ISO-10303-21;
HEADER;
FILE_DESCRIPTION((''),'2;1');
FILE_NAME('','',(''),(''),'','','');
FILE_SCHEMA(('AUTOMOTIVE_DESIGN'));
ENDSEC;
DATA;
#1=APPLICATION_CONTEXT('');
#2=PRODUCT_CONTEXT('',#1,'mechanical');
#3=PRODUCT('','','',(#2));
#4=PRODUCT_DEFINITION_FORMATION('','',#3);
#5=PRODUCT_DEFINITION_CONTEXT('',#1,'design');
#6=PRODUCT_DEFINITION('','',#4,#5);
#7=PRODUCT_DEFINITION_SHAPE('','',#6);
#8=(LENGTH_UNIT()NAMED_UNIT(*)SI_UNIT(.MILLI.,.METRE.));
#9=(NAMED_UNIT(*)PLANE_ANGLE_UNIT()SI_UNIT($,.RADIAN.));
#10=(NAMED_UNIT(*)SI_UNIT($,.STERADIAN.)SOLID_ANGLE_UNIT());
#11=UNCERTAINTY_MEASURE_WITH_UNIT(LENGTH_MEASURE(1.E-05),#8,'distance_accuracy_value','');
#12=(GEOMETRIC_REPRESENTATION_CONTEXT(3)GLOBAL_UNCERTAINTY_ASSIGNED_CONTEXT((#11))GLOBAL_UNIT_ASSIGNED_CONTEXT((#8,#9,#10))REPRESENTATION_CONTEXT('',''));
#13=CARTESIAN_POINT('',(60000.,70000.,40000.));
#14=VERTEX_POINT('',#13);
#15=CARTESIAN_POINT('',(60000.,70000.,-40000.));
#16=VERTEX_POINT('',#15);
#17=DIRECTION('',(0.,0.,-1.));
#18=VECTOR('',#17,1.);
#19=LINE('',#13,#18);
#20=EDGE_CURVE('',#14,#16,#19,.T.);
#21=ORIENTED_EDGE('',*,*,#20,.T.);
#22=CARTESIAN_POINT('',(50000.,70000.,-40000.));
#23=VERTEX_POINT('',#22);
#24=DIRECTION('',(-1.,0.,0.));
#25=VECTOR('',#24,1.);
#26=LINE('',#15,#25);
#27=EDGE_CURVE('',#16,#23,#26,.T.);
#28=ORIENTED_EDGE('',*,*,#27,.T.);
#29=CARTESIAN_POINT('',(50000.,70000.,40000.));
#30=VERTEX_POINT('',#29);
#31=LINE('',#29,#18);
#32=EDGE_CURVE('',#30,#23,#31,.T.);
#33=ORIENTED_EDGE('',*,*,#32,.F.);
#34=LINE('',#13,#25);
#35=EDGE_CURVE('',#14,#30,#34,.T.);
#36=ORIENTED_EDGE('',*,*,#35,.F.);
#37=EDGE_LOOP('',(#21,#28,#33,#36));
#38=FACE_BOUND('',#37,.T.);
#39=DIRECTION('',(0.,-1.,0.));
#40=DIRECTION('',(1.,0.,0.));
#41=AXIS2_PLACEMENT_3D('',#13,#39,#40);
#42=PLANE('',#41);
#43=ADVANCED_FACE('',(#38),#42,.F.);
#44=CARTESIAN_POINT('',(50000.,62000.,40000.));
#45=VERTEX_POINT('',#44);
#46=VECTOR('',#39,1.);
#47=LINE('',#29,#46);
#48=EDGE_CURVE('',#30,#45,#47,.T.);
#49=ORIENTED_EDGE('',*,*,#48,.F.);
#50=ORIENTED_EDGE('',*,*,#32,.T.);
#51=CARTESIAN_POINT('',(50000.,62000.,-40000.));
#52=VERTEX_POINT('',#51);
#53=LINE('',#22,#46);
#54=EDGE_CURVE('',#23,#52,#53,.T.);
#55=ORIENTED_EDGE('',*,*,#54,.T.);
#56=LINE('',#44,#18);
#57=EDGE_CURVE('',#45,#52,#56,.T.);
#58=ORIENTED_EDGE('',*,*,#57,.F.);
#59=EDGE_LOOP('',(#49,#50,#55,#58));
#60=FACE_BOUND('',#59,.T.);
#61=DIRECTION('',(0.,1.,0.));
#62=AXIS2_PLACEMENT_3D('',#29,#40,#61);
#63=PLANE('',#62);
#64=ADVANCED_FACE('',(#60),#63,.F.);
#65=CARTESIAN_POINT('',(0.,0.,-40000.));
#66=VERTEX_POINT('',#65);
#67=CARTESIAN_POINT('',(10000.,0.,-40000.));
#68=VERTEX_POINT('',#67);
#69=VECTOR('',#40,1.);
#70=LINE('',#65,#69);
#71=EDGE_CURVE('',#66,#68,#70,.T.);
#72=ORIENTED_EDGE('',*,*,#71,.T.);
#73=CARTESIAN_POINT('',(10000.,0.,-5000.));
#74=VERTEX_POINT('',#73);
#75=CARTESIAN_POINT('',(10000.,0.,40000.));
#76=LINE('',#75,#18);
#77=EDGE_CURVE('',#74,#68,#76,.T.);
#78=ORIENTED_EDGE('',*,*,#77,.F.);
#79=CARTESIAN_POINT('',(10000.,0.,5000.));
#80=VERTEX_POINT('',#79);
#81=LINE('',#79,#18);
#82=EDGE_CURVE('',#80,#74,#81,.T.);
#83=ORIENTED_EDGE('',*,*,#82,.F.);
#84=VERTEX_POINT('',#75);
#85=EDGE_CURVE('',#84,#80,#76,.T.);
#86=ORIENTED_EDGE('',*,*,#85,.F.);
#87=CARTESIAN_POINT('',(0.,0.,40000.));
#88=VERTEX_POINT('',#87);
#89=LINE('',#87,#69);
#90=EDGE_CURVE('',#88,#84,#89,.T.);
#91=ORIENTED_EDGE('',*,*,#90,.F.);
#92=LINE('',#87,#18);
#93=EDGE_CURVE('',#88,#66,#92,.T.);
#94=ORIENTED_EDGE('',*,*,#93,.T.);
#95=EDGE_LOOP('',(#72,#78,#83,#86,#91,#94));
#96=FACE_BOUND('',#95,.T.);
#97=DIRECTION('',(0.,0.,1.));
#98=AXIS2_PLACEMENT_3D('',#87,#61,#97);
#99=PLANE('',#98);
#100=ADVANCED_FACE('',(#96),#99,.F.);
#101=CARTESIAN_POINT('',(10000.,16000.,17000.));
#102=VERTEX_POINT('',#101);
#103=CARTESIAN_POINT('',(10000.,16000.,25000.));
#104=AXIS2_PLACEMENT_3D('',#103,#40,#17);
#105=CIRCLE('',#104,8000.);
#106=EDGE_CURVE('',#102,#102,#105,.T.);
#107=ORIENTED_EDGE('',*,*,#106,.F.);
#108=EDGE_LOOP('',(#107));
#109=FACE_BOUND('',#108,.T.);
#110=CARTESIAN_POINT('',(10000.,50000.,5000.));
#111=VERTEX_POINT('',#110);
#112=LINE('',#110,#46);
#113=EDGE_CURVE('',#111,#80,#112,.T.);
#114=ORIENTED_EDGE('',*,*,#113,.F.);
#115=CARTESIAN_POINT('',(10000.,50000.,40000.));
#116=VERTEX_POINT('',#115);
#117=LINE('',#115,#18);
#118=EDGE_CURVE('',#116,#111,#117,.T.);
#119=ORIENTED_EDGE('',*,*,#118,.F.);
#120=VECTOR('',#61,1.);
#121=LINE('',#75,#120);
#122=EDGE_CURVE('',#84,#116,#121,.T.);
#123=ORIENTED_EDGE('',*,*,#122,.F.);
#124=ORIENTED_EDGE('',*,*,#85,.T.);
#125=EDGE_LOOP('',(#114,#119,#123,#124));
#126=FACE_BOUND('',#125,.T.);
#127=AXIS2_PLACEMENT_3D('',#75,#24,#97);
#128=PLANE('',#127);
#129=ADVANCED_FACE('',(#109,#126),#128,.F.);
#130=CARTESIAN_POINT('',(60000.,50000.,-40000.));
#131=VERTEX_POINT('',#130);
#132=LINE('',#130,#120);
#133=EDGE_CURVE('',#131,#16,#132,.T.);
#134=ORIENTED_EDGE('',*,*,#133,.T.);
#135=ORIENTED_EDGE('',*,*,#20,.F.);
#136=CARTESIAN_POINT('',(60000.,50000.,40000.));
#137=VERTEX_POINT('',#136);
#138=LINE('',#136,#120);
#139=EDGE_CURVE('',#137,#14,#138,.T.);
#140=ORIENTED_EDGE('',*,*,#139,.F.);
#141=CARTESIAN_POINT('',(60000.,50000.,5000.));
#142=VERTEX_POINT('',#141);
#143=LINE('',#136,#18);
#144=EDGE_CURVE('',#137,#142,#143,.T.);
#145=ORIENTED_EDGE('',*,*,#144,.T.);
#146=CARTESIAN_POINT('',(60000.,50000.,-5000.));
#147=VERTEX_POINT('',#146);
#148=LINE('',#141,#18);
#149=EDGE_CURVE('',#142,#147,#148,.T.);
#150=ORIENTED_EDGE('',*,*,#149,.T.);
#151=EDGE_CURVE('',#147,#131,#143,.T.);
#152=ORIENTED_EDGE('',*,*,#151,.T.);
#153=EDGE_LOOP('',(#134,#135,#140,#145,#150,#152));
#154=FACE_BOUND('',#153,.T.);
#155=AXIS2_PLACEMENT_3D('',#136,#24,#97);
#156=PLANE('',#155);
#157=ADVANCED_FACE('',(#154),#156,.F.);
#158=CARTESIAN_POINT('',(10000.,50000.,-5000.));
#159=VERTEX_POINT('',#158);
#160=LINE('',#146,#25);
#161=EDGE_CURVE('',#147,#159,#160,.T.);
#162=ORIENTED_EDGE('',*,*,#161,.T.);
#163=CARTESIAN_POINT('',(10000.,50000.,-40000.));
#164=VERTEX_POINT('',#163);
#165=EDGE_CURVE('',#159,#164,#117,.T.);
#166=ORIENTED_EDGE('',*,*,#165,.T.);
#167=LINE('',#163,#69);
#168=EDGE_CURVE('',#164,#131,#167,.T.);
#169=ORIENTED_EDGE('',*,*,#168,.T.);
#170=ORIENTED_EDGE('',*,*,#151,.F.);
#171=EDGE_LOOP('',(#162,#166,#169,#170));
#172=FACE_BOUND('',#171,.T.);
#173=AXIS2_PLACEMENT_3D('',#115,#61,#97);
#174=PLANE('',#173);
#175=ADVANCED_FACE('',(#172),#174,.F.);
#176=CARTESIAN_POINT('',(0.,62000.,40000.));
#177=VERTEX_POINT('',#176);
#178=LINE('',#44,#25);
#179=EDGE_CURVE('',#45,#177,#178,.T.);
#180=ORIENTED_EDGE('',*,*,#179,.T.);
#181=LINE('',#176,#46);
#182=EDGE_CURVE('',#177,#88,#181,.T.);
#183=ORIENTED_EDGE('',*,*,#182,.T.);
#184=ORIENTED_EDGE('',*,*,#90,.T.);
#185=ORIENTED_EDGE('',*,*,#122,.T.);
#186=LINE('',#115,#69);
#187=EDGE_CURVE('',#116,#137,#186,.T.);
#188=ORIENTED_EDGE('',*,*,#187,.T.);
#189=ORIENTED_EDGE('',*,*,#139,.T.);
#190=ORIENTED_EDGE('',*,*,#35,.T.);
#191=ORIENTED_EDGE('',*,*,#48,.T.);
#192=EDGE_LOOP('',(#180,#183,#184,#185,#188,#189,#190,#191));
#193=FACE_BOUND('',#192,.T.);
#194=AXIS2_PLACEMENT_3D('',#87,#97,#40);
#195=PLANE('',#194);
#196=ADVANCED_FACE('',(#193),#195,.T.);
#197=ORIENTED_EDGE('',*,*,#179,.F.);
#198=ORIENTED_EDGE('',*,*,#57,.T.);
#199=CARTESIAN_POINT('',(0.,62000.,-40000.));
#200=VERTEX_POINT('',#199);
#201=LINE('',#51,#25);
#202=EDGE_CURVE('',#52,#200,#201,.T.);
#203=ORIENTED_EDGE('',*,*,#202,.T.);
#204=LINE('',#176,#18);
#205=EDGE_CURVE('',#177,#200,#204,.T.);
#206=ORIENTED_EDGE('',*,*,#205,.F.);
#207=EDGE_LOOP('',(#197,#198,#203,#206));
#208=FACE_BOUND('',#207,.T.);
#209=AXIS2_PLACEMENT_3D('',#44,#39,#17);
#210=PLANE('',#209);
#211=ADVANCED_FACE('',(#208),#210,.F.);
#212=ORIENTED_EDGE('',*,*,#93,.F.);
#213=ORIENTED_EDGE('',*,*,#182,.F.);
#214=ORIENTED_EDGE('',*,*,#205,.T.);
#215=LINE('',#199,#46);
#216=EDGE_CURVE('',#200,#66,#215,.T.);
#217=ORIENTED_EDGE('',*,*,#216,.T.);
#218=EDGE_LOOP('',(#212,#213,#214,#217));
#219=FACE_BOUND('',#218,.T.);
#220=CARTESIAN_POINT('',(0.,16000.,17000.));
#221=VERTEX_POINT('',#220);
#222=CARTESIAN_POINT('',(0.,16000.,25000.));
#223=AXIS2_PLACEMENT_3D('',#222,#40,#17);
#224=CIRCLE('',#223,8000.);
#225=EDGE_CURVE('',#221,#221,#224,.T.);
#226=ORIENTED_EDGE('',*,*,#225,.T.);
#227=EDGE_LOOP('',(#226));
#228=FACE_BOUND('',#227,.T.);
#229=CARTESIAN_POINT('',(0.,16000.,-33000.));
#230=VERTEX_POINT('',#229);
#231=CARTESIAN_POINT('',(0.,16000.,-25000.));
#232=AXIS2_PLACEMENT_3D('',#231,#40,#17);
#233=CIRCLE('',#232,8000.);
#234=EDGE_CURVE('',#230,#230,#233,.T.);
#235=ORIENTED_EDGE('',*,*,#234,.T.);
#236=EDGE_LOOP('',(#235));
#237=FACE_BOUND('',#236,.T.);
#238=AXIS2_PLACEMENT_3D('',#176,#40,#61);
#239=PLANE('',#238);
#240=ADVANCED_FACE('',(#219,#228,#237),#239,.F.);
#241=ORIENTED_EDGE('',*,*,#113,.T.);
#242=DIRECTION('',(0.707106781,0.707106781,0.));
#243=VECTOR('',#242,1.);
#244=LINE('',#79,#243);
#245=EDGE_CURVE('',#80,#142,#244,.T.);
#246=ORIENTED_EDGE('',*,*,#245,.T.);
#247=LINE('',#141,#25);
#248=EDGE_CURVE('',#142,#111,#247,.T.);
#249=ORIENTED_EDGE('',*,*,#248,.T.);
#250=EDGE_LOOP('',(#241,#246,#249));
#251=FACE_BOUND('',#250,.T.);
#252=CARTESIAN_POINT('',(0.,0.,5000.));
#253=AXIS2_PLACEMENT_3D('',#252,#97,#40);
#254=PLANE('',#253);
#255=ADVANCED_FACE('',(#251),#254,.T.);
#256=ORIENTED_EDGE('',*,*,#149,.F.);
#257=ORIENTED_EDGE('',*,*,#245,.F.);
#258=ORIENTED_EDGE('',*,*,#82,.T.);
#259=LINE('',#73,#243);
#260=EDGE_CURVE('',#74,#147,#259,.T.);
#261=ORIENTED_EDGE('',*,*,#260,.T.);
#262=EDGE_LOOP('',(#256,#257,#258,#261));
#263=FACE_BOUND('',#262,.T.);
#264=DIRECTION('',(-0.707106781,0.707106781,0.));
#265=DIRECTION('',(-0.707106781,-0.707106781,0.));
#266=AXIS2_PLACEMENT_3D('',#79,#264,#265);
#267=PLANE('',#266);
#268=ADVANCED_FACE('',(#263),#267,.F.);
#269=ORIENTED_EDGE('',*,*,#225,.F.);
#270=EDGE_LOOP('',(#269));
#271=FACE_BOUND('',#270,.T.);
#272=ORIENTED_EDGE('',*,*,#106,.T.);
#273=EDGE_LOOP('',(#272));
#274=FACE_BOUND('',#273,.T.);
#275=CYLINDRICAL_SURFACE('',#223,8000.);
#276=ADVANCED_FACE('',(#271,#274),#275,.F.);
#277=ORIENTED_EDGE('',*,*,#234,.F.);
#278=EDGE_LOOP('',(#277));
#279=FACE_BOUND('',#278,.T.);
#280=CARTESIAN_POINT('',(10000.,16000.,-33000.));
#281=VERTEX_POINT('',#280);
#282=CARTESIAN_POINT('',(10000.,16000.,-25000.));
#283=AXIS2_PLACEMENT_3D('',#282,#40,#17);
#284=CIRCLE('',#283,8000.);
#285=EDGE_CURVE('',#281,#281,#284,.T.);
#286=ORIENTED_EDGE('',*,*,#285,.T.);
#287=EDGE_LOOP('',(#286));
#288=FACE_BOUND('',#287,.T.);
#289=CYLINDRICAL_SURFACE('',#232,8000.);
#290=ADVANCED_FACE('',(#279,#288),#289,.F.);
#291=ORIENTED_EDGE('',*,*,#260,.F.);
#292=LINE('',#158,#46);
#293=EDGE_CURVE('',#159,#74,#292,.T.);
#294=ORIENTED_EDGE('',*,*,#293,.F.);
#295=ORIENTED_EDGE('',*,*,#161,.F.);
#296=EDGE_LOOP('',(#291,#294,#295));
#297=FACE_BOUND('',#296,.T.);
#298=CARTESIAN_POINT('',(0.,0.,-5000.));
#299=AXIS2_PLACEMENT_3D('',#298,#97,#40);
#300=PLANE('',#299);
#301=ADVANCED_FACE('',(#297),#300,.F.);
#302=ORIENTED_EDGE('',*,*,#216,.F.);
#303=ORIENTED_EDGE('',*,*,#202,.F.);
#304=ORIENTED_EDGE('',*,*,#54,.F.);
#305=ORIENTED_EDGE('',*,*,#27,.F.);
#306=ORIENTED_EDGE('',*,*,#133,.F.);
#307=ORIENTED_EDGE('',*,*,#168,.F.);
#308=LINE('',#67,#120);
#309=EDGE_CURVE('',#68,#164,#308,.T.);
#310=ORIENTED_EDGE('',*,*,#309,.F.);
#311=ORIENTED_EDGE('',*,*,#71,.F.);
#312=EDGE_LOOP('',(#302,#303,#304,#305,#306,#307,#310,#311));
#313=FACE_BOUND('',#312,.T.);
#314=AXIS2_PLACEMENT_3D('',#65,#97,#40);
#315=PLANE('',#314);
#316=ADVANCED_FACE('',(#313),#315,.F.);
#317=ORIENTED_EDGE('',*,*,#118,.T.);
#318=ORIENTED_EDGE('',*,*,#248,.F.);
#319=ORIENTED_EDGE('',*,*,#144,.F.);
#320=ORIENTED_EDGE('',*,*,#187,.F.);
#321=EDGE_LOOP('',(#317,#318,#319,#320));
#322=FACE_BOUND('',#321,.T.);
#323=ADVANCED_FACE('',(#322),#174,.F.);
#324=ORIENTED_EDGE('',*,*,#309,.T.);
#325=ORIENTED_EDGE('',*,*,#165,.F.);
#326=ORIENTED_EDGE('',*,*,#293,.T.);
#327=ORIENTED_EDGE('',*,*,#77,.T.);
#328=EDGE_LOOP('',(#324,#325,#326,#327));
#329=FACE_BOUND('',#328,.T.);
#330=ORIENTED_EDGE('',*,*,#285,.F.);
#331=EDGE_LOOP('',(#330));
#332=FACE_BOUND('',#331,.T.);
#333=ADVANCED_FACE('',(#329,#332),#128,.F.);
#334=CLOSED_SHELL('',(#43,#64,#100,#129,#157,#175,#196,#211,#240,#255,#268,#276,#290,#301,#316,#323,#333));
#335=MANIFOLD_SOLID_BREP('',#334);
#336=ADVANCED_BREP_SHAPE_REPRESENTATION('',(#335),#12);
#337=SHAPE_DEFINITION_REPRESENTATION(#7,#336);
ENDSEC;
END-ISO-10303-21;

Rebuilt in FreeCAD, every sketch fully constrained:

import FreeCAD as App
import Part
import Sketcher

V = App.Vector
Q = App.Units.Quantity

doc = App.newDocument("Part")
body = doc.addObject("PartDesign::Body", "Body")

# Sketch on XY plane
sketch1 = body.newObject("Sketcher::SketchObject", "Sketch")
sketch1.AttachmentSupport = (doc.getObject("XY_Plane"), [""])
sketch1.MapMode = "FlatFace"
sketch1.addGeometry([
    Part.LineSegment(V(0, 0, 0), V(10000, 0, 0)),  # 0
    Part.LineSegment(V(10000, 0, 0), V(10000, 50000, 0)),  # 1
    Part.LineSegment(V(10000, 50000, 0), V(60000, 50000, 0)),  # 2
    Part.LineSegment(V(60000, 50000, 0), V(60000, 70000, 0)),  # 3
    Part.LineSegment(V(60000, 70000, 0), V(50000, 70000, 0)),  # 4
    Part.LineSegment(V(50000, 70000, 0), V(50000, 62000, 0)),  # 5
    Part.LineSegment(V(50000, 62000, 0), V(0, 62000, 0)),  # 6
    Part.LineSegment(V(0, 62000, 0), V(0, 0, 0)),  # 7
], False)
sketch1.addConstraint([
    Sketcher.Constraint("Coincident", 0, 2, 1, 1),
    Sketcher.Constraint("Coincident", 1, 2, 2, 1),
    Sketcher.Constraint("Coincident", 2, 2, 3, 1),
    Sketcher.Constraint("Coincident", 3, 2, 4, 1),
    Sketcher.Constraint("Coincident", 4, 2, 5, 1),
    Sketcher.Constraint("Coincident", 5, 2, 6, 1),
    Sketcher.Constraint("Coincident", 6, 2, 7, 1),
    Sketcher.Constraint("Coincident", 7, 2, 0, 1),
    Sketcher.Constraint("Horizontal", 0),
    Sketcher.Constraint("Vertical", 1),
    Sketcher.Constraint("Horizontal", 2),
    Sketcher.Constraint("Vertical", 3),
    Sketcher.Constraint("Horizontal", 4),
    Sketcher.Constraint("Vertical", 5),
    Sketcher.Constraint("Horizontal", 6),
    Sketcher.Constraint("Vertical", 7),
    Sketcher.Constraint("Coincident", 7, 2, -1, 1),
    Sketcher.Constraint("Equal", 0, 4),
    Sketcher.Constraint("Equal", 6, 1),
    Sketcher.Constraint("DistanceX", 0, 1, 0, 2, Q("10000 mm")),
    Sketcher.Constraint("DistanceX", 2, 1, 2, 2, Q("50000 mm")),
    Sketcher.Constraint("DistanceY", 3, 1, 3, 2, Q("20000 mm")),
    Sketcher.Constraint("DistanceY", 5, 2, 5, 1, Q("8000 mm")),
])
pad1 = body.newObject("PartDesign::Pad", "Pad")
pad1.Profile = sketch1
pad1.Length = 80000
pad1.Midplane = True

# Sketch on YZ plane
sketch2 = body.newObject("Sketcher::SketchObject", "Sketch001")
sketch2.AttachmentSupport = (doc.getObject("YZ_Plane"), [""])
sketch2.MapMode = "FlatFace"
sketch2.AttachmentOffset = App.Placement(V(0, 0, 10000), App.Rotation())
sketch2.addGeometry([
    Part.Circle(V(16000, 25000, 0), V(0, 0, 1), 8000),
    Part.Circle(V(16000, -25000, 0), V(0, 0, 1), 8000),
], False)
sketch2.addConstraint([
    Sketcher.Constraint("Equal", 0, 1),
    Sketcher.Constraint("Symmetric", 0, 3, 1, 3, -1),
    Sketcher.Constraint("Diameter", 0, Q("16000 mm")),
    Sketcher.Constraint("DistanceX", -1, 1, 0, 3, Q("16000 mm")),
    Sketcher.Constraint("DistanceY", -1, 1, 0, 3, Q("25000 mm")),
])
pocket1 = body.newObject("PartDesign::Pocket", "Pocket")
pocket1.Profile = sketch2
pocket1.Type = "ThroughAll"

# Sketch on XY plane
sketch3 = body.newObject("Sketcher::SketchObject", "Sketch002")
sketch3.AttachmentSupport = (doc.getObject("XY_Plane"), [""])
sketch3.MapMode = "FlatFace"
sketch3.AttachmentOffset = App.Placement(V(0, 0, -5000), App.Rotation())
sketch3.addGeometry([
    Part.LineSegment(V(60000, 50000, 0), V(10000, 50000, 0)),
    Part.LineSegment(V(10000, 50000, 0), V(10000, 0, 0)),
    Part.LineSegment(V(10000, 0, 0), V(60000, 50000, 0)),
], False)
sketch3.addConstraint([
    Sketcher.Constraint("Coincident", 0, 2, 1, 1),
    Sketcher.Constraint("Coincident", 1, 2, 2, 1),
    Sketcher.Constraint("Coincident", 2, 2, 0, 1),
    Sketcher.Constraint("Horizontal", 0),
    Sketcher.Constraint("Vertical", 1),
    Sketcher.Constraint("PointOnObject", 1, 2, -1),
    Sketcher.Constraint("Equal", 0, 1),
    Sketcher.Constraint("DistanceX", 0, 2, 0, 1, Q("50000 mm")),
    Sketcher.Constraint("DistanceX", -1, 1, 0, 2, Q("10000 mm")),
])
pad2 = body.newObject("PartDesign::Pad", "Pad001")
pad2.Profile = sketch3
pad2.Length = 10000

doc.recompute()
